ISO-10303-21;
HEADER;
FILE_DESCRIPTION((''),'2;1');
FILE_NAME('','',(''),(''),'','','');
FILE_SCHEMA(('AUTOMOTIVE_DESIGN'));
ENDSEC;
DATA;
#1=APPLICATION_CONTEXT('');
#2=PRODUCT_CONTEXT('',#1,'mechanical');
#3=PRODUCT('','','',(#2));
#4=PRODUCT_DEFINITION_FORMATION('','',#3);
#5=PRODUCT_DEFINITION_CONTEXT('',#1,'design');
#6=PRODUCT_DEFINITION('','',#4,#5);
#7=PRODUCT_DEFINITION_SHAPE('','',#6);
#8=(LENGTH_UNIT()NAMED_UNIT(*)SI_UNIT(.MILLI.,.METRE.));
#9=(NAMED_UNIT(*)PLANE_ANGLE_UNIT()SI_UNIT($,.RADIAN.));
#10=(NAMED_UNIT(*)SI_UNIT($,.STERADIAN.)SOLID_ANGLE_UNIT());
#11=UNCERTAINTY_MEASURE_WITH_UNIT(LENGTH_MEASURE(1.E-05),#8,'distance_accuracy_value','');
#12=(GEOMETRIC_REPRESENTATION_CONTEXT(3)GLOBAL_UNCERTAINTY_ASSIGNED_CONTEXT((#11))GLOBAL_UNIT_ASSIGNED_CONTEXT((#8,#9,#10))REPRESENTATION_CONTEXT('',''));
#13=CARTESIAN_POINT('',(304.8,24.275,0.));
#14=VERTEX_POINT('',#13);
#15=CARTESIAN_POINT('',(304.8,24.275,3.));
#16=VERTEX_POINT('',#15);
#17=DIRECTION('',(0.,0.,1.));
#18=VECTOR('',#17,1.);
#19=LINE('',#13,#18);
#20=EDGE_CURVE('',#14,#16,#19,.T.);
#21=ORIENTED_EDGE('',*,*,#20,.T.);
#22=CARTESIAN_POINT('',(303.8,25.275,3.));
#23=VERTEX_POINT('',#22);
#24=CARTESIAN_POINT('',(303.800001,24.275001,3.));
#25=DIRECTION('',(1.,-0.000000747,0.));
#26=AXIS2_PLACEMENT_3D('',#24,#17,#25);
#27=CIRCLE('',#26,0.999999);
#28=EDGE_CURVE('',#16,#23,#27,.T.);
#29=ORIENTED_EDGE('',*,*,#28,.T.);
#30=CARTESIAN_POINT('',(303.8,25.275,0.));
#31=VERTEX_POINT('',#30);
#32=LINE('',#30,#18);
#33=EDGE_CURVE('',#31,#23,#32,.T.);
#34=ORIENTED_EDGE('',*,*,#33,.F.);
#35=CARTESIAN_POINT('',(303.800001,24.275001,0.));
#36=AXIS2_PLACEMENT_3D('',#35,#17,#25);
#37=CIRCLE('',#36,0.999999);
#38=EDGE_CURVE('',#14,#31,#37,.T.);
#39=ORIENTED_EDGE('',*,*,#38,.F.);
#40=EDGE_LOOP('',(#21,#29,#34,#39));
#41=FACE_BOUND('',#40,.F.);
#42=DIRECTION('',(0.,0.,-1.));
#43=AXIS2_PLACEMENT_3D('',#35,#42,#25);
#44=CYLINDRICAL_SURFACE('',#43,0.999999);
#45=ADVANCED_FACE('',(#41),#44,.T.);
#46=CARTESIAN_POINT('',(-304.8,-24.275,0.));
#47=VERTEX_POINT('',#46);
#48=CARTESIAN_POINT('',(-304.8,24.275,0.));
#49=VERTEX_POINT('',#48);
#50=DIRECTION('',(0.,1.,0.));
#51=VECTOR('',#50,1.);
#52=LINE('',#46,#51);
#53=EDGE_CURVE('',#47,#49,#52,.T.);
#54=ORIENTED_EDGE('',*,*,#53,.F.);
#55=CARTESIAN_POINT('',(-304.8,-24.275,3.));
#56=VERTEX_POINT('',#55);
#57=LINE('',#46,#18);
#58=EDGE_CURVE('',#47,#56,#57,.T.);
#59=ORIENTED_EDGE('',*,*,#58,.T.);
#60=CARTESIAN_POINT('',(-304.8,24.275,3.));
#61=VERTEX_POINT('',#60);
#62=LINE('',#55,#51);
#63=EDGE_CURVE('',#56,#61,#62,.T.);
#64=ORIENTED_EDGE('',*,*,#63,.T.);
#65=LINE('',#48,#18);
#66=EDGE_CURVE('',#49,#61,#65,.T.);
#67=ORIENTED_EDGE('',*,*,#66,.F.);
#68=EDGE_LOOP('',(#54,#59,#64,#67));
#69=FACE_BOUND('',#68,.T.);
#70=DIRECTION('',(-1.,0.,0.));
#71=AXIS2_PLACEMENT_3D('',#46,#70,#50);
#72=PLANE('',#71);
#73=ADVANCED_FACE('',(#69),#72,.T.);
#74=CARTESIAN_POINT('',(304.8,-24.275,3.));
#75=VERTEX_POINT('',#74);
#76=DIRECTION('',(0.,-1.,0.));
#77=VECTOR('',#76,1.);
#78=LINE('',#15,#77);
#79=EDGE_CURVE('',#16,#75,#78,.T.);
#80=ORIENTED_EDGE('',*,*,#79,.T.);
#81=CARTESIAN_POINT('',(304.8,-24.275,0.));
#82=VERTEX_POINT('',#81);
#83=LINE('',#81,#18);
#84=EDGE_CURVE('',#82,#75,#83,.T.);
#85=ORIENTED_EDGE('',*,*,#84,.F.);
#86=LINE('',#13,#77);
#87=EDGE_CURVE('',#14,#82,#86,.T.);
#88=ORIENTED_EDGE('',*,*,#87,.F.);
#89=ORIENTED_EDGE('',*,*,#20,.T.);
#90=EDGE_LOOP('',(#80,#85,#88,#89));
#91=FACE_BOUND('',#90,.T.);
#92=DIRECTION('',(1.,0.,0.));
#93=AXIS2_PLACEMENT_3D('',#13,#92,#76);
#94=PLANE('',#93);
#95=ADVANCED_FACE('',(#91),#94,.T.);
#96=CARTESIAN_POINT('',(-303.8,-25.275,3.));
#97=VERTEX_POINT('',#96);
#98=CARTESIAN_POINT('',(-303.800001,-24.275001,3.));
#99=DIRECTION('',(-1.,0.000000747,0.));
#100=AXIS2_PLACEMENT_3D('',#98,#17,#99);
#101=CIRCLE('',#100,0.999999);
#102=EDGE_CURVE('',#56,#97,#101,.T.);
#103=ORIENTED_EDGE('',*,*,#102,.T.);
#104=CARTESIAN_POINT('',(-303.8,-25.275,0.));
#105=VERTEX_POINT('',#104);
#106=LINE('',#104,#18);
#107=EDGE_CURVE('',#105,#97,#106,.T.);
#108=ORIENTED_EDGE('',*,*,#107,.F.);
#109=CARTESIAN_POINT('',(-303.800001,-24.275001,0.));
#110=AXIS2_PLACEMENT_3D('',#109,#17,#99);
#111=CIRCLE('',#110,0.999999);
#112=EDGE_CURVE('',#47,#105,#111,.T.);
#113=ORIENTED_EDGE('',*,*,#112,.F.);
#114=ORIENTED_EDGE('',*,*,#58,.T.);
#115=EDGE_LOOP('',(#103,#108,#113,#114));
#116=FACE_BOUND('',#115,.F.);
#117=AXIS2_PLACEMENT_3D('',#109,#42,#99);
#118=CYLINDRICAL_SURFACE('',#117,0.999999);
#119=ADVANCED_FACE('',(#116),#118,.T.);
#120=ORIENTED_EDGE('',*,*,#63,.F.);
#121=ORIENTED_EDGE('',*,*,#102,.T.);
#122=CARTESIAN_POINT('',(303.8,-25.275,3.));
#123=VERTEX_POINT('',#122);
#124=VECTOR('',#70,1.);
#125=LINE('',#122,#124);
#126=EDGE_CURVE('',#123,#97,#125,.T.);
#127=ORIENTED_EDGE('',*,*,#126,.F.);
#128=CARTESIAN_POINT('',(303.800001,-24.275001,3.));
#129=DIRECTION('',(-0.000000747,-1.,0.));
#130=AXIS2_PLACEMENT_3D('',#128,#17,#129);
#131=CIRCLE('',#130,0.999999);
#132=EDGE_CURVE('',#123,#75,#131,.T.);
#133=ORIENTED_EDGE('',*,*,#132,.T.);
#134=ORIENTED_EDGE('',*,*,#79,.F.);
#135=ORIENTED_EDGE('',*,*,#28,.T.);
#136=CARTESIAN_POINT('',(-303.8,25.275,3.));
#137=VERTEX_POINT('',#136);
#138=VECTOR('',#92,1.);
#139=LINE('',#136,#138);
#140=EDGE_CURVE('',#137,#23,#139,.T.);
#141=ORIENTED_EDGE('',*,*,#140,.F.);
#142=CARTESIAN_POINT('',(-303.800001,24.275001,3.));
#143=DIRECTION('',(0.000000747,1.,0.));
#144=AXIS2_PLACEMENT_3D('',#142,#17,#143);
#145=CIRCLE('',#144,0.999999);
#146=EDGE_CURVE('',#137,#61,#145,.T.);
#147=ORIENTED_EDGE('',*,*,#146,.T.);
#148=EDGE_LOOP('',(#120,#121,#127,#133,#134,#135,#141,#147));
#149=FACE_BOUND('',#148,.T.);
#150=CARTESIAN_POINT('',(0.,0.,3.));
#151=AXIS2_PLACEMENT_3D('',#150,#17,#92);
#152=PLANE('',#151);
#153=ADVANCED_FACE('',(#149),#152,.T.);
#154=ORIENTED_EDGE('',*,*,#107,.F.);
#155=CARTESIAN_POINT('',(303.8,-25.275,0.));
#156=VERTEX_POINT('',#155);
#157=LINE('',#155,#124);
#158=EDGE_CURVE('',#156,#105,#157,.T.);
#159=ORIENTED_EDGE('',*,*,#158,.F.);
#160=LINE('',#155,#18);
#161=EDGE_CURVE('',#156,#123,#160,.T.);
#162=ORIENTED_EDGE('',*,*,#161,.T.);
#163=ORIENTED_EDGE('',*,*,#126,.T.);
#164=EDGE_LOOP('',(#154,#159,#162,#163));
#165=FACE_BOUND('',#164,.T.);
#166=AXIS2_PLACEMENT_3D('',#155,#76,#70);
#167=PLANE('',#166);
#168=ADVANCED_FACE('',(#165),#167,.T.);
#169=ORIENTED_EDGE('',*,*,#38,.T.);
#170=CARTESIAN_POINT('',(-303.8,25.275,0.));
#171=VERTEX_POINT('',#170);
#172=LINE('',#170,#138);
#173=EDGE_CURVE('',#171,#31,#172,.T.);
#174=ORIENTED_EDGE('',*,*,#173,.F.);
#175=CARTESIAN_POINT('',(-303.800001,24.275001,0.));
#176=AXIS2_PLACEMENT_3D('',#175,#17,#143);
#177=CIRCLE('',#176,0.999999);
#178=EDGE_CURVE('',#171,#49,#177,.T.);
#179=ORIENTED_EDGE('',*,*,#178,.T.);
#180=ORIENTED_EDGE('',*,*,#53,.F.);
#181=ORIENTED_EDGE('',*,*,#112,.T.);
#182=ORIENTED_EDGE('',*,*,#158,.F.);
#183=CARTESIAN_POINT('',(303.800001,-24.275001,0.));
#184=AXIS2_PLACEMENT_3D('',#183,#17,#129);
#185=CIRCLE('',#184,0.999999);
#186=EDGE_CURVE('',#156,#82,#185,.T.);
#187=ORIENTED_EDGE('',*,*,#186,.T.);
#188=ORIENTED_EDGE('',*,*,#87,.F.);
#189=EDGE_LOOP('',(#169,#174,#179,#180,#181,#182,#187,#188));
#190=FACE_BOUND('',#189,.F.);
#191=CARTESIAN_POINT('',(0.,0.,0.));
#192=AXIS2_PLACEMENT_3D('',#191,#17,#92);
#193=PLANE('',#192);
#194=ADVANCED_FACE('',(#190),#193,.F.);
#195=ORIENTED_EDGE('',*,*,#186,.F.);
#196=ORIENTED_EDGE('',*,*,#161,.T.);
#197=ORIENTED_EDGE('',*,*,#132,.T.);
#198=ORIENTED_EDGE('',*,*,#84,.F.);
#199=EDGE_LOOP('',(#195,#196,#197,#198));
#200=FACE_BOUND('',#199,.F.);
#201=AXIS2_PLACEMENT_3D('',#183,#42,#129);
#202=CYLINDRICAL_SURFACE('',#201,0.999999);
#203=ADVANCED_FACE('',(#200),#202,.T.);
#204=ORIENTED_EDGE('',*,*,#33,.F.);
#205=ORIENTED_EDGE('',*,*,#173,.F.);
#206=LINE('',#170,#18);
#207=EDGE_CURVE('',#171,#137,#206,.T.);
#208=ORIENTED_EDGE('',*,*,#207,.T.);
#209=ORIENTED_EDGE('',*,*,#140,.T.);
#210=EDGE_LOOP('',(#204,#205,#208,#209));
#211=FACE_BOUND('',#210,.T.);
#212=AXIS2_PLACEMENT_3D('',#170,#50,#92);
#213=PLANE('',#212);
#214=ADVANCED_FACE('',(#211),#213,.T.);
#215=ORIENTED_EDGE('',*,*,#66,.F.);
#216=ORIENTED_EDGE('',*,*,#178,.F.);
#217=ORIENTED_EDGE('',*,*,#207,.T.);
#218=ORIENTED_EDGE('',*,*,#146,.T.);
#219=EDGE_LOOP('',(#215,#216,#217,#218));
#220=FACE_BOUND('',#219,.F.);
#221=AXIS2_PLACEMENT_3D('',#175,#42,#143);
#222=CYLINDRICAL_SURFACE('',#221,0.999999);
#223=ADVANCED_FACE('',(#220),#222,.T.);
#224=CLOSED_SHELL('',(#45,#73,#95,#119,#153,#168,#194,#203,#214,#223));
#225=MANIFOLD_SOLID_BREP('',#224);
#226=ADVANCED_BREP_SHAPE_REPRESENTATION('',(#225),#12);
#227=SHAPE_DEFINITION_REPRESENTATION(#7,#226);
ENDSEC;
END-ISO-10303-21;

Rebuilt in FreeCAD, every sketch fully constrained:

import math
import FreeCAD as App
import Part
import Sketcher
Q = App.Units.Quantity

doc = App.newDocument("Part")
params = doc.addObject("Spreadsheet::Sheet", "Params")
for row, (alias, value) in enumerate([
    ("sketch1_radius", "0.999999 mm"),
    ("sketch1_width", "607.6 mm"),
    ("sketch1_height", "48.55 mm"),
    ("pad1_length", "3 mm"),
], start=1):
    params.set(f"A{row}", alias)
    params.set(f"B{row}", "=" + value)
    params.setAlias(f"B{row}", alias)

body = doc.addObject("PartDesign::Body", "Body")

# Sketch on XY plane
sketch1 = doc.addObject("Sketcher::SketchObject", "Sketch")
body.addObject(sketch1)
sketch1.AttachmentSupport = (doc.XY_Plane, [""])
sketch1.MapMode = "FlatFace"
sketch1.addGeometry([
    Part.ArcOfCircle(Part.Circle(App.Vector(-303.800001, 24.275001, 0), App.Vector(0, 0, 1), 0.999999), math.radians(89.999957), math.radians(180.000043)),  # 0
    Part.LineSegment(App.Vector(-304.8, 24.275, 0), App.Vector(-304.8, -24.275, 0)),  # 1
    Part.ArcOfCircle(Part.Circle(App.Vector(-303.800001, -24.275001, 0), App.Vector(0, 0, 1), 0.999999), math.radians(179.999957), math.radians(270.000043)),  # 2
    Part.LineSegment(App.Vector(-303.8, -25.275, 0), App.Vector(303.8, -25.275, 0)),  # 3
    Part.ArcOfCircle(Part.Circle(App.Vector(303.800001, -24.275001, 0), App.Vector(0, 0, 1), 0.999999), math.radians(-90.000043), math.radians(0.000043)),  # 4
    Part.LineSegment(App.Vector(304.8, -24.275, 0), App.Vector(304.8, 24.275, 0)),  # 5
    Part.ArcOfCircle(Part.Circle(App.Vector(303.800001, 24.275001, 0), App.Vector(0, 0, 1), 0.999999), math.radians(-0.000043), math.radians(90.000043)),  # 6
    Part.LineSegment(App.Vector(303.8, 25.275, 0), App.Vector(-303.8, 25.275, 0)),  # 7
], False)
sketch1.addConstraint([
    Sketcher.Constraint("Tangent", 0, 2, 1, 1),
    Sketcher.Constraint("Tangent", 1, 2, 2, 1),
    Sketcher.Constraint("Tangent", 2, 2, 3, 1),
    Sketcher.Constraint("Tangent", 3, 2, 4, 1),
    Sketcher.Constraint("Tangent", 4, 2, 5, 1),
    Sketcher.Constraint("Tangent", 5, 2, 6, 1),
    Sketcher.Constraint("Tangent", 6, 2, 7, 1),
    Sketcher.Constraint("Tangent", 7, 2, 0, 1),
    Sketcher.Constraint("Vertical", 1),
    Sketcher.Constraint("Horizontal", 3),
    Sketcher.Constraint("Vertical", 5),
    Sketcher.Constraint("Horizontal", 7),
    Sketcher.Constraint("Equal", 0, 2),
    Sketcher.Constraint("Equal", 2, 4),
    Sketcher.Constraint("Equal", 4, 6),
    Sketcher.Constraint("Symmetric", 0, 3, 4, 3, -1, 1),
    Sketcher.Constraint("Radius", 0, Q("0.999999 mm")),
    Sketcher.Constraint("DistanceX", 3, 1, 3, 2, Q("607.6 mm")),
    Sketcher.Constraint("DistanceY", 1, 2, 1, 1, Q("48.55 mm")),
])
sketch1.setExpression("Constraints[16]", "Params.sketch1_radius")
sketch1.setExpression("Constraints[17]", "Params.sketch1_width")
sketch1.setExpression("Constraints[18]", "Params.sketch1_height")
pad1 = doc.addObject("PartDesign::Pad", "Pad")
body.addObject(pad1)
pad1.Profile = sketch1
pad1.setExpression("Length", "Params.pad1_length")

doc.recompute()
